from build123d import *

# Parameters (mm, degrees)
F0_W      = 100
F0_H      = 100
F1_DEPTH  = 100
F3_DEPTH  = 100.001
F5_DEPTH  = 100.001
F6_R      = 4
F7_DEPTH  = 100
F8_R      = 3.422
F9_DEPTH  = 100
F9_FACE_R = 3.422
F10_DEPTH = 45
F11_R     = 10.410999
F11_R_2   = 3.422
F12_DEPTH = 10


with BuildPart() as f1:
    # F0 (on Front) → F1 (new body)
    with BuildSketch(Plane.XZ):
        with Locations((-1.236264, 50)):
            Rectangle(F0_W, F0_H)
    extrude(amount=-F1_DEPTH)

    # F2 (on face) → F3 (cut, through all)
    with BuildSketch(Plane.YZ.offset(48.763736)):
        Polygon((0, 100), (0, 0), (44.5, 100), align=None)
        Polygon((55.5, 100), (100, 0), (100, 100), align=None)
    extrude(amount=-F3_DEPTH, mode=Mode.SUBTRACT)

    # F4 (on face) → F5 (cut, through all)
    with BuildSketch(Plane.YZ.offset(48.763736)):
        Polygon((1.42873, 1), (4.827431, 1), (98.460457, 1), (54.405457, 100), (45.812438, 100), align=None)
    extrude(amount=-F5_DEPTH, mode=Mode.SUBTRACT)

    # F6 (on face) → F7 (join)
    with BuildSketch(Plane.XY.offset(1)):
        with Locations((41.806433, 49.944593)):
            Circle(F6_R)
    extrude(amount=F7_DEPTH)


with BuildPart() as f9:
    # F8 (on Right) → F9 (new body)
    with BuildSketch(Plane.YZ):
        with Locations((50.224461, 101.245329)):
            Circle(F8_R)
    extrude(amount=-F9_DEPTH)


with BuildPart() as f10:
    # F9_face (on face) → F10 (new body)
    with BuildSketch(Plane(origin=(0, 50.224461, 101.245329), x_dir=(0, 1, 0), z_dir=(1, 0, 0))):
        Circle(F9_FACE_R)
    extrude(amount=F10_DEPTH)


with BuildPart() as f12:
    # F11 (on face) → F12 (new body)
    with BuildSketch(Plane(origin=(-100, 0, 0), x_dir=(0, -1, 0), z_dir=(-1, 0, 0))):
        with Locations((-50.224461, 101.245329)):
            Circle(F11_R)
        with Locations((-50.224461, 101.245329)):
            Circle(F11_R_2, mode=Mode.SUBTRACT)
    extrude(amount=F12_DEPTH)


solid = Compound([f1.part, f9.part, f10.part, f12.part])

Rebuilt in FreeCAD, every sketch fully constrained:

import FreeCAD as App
import Part
import Sketcher
Q = App.Units.Quantity

doc = App.newDocument("Part")
params = doc.addObject("Spreadsheet::Sheet", "Params")
for row, (alias, value) in enumerate([
    ("sketch1_width", "100 mm"),
    ("pad1_length", "100 mm"),
    ("sketch2_height", "100 mm"),
    ("sketch2_width", "44.5 mm"),
    ("sketch4_diameter", "8 mm"),
    ("pad2_length", "100 mm"),
    ("pad3_length", "100 mm"),
    ("pad4_length", "45 mm"),
    ("pad5_length", "10 mm"),
], start=1):
    params.set(f"A{row}", alias)
    params.set(f"B{row}", "=" + value)
    params.setAlias(f"B{row}", alias)

body = doc.addObject("PartDesign::Body", "Body")

sketch1 = body.newObject("Sketcher::SketchObject", "Sketch")
sketch1.AttachmentSupport = (doc.getObject("XZ_Plane"), [""])
sketch1.MapMode = "FlatFace"
sketch1.addGeometry(Part.LineSegment(App.Vector(-51, 100, 0), App.Vector(-51, 0, 0)), False)
sketch1.addGeometry(Part.LineSegment(App.Vector(-51, 0, 0), App.Vector(49, 0, 0)), False)
sketch1.addGeometry(Part.LineSegment(App.Vector(49, 0, 0), App.Vector(49, 100, 0)), False)
sketch1.addGeometry(Part.LineSegment(App.Vector(49, 100, 0), App.Vector(-51, 100, 0)), False)
sketch1.addConstraint(Sketcher.Constraint("Coincident", 0, 2, 1, 1))
sketch1.addConstraint(Sketcher.Constraint("Coincident", 1, 2, 2, 1))
sketch1.addConstraint(Sketcher.Constraint("Coincident", 2, 2, 3, 1))
sketch1.addConstraint(Sketcher.Constraint("Coincident", 3, 2, 0, 1))
sketch1.addConstraint(Sketcher.Constraint("Vertical", 0))
sketch1.addConstraint(Sketcher.Constraint("Horizontal", 1))
sketch1.addConstraint(Sketcher.Constraint("Vertical", 2))
sketch1.addConstraint(Sketcher.Constraint("Horizontal", 3))
sketch1.addConstraint(Sketcher.Constraint("PointOnObject", 0, 2, -1))
sketch1.addConstraint(Sketcher.Constraint("Equal", 3, 0))
sketch1.addConstraint(Sketcher.Constraint("DistanceX", 1, 1, 1, 2, Q("100 mm")))
sketch1.addConstraint(Sketcher.Constraint("DistanceX", 0, 2, -1, 1, Q("51.236264 mm")))
sketch1.setExpression("Constraints[10]", "Params.sketch1_width")
pad1 = body.newObject("PartDesign::Pad", "Pad")
pad1.Profile = sketch1
pad1.setExpression("Length", "Params.pad1_length")
pad1.Reversed = True

sketch2 = body.newObject("Sketcher::SketchObject", "Sketch001")
sketch2.AttachmentSupport = (doc.getObject("YZ_Plane"), [""])
sketch2.MapMode = "FlatFace"
sketch2.AttachmentOffset = App.Placement(App.Vector(0, 0, 48.763736), App.Rotation())
sketch2.addGeometry(Part.LineSegment(App.Vector(0, 100, 0), App.Vector(0, 0, 0)), False)
sketch2.addGeometry(Part.LineSegment(App.Vector(0, 0, 0), App.Vector(44, 100, 0)), False)
sketch2.addGeometry(Part.LineSegment(App.Vector(44, 100, 0), App.Vector(0, 100, 0)), False)
sketch2.addGeometry(Part.LineSegment(App.Vector(56, 100, 0), App.Vector(100, 0, 0)), False)
sketch2.addGeometry(Part.LineSegment(App.Vector(100, 0, 0), App.Vector(100, 100, 0)), False)
sketch2.addGeometry(Part.LineSegment(App.Vector(100, 100, 0), App.Vector(56, 100, 0)), False)
sketch2.addConstraint(Sketcher.Constraint("Coincident", 0, 2, 1, 1))
sketch2.addConstraint(Sketcher.Constraint("Coincident", 1, 2, 2, 1))
sketch2.addConstraint(Sketcher.Constraint("Coincident", 2, 2, 0, 1))
sketch2.addConstraint(Sketcher.Constraint("Coincident", 3, 2, 4, 1))
sketch2.addConstraint(Sketcher.Constraint("Coincident", 4, 2, 5, 1))
sketch2.addConstraint(Sketcher.Constraint("Coincident", 5, 2, 3, 1))
sketch2.addConstraint(Sketcher.Constraint("Vertical", 0))
sketch2.addConstraint(Sketcher.Constraint("Horizontal", 2))
sketch2.addConstraint(Sketcher.Constraint("Vertical", 4))
sketch2.addConstraint(Sketcher.Constraint("Horizontal", 5))
sketch2.addConstraint(Sketcher.Constraint("Coincident", 0, 2, -1, 1))
sketch2.addConstraint(Sketcher.Constraint("PointOnObject", 3, 2, -1))
sketch2.addConstraint(Sketcher.Constraint("Horizontal", 2, 2, 4, 2))
sketch2.addConstraint(Sketcher.Constraint("Equal", 2, 5))
sketch2.addConstraint(Sketcher.Constraint("DistanceY", 0, 2, 0, 1, Q("100 mm")))
sketch2.addConstraint(Sketcher.Constraint("DistanceX", 2, 2, 2, 1, Q("44.5 mm")))
sketch2.addConstraint(Sketcher.Constraint("DistanceX", -1, 1, 3, 2, Q("100 mm")))
sketch2.setExpression("Constraints[14]", "Params.sketch2_height")
sketch2.setExpression("Constraints[15]", "Params.sketch2_width")
pocket1 = body.newObject("PartDesign::Pocket", "Pocket")
pocket1.Profile = sketch2
pocket1.Type = "ThroughAll"

sketch3 = body.newObject("Sketcher::SketchObject", "Sketch002")
sketch3.AttachmentSupport = (doc.getObject("YZ_Plane"), [""])
sketch3.MapMode = "FlatFace"
sketch3.AttachmentOffset = App.Placement(App.Vector(0, 0, 48.763736), App.Rotation())
sketch3.addGeometry(Part.LineSegment(App.Vector(1, 1, 0), App.Vector(98, 1, 0)), False)
sketch3.addGeometry(Part.LineSegment(App.Vector(98, 1, 0), App.Vector(54, 100, 0)), False)
sketch3.addGeometry(Part.LineSegment(App.Vector(54, 100, 0), App.Vector(46, 100, 0)), False)
sketch3.addGeometry(Part.LineSegment(App.Vector(46, 100, 0), App.Vector(1, 1, 0)), False)
sketch3.addConstraint(Sketcher.Constraint("Coincident", 0, 2, 1, 1))
sketch3.addConstraint(Sketcher.Constraint("Coincident", 1, 2, 2, 1))
sketch3.addConstraint(Sketcher.Constraint("Coincident", 2, 2, 3, 1))
sketch3.addConstraint(Sketcher.Constraint("Coincident", 3, 2, 0, 1))
sketch3.addConstraint(Sketcher.Constraint("Horizontal", 0))
sketch3.addConstraint(Sketcher.Constraint("Horizontal", 2))
sketch3.addConstraint(Sketcher.Constraint("DistanceY", -1, 1, 0, 2, Q("1 mm")))
sketch3.addConstraint(Sketcher.Constraint("DistanceY", -1, 1, 1, 2, Q("100 mm")))
sketch3.addConstraint(Sketcher.Constraint("DistanceX", 1, 2, 0, 2, Q("44.055 mm")))
sketch3.addConstraint(Sketcher.Constraint("DistanceX", 2, 2, 2, 1, Q("8.593019 mm")))
sketch3.addConstraint(Sketcher.Constraint("Distance", 3, Q("108.493841 mm")))
sketch3.addConstraint(Sketcher.Constraint("DistanceX", -1, 1, 3, 2, Q("1.42873 mm")))
pocket2 = body.newObject("PartDesign::Pocket", "Pocket001")
pocket2.Profile = sketch3
pocket2.Type = "ThroughAll"

sketch4 = body.newObject("Sketcher::SketchObject", "Sketch003")
sketch4.AttachmentSupport = (doc.getObject("XY_Plane"), [""])
sketch4.MapMode = "FlatFace"
sketch4.AttachmentOffset = App.Placement(App.Vector(0, 0, 1), App.Rotation())
sketch4.addGeometry(Part.Circle(App.Vector(41.8, 49.9, 0), App.Vector(0, 0, 1), 4), False)
sketch4.addConstraint(Sketcher.Constraint("Diameter", 0, Q("8 mm")))
sketch4.addConstraint(Sketcher.Constraint("DistanceX", -1, 1, 0, 3, Q("41.806433 mm")))
sketch4.addConstraint(Sketcher.Constraint("DistanceY", -1, 1, 0, 3, Q("49.944593 mm")))
sketch4.setExpression("Constraints[0]", "Params.sketch4_diameter")
pad2 = body.newObject("PartDesign::Pad", "Pad001")
pad2.Profile = sketch4
pad2.setExpression("Length", "Params.pad2_length")
body2 = doc.addObject("PartDesign::Body", "Body001")

sketch5 = body2.newObject("Sketcher::SketchObject", "Sketch004")
sketch5.AttachmentSupport = (doc.getObject("YZ_Plane001"), [""])
sketch5.MapMode = "FlatFace"
sketch5.addGeometry(Part.Circle(App.Vector(50.2, 101.2, 0), App.Vector(0, 0, 1), 3.4), False)
sketch5.addConstraint(Sketcher.Constraint("Diameter", 0, Q("6.844 mm")))
sketch5.addConstraint(Sketcher.Constraint("DistanceX", -1, 1, 0, 3, Q("50.224461 mm")))
sketch5.addConstraint(Sketcher.Constraint("DistanceY", -1, 1, 0, 3, Q("101.245329 mm")))
pad3 = body2.newObject("PartDesign::Pad", "Pad002")
pad3.Profile = sketch5
pad3.setExpression("Length", "Params.pad3_length")
pad3.Reversed = True
body3 = doc.addObject("PartDesign::Body", "Body002")

sketch6 = body3.newObject("Sketcher::SketchObject", "Sketch005")
sketch6.AttachmentSupport = (doc.getObject("YZ_Plane002"), [""])
sketch6.MapMode = "FlatFace"
sketch6.addGeometry(Part.Circle(App.Vector(50.2, 101.2, 0), App.Vector(0, 0, 1), 3.4), False)
sketch6.addConstraint(Sketcher.Constraint("Diameter", 0, Q("6.844 mm")))
sketch6.addConstraint(Sketcher.Constraint("DistanceX", -1, 1, 0, 3, Q("50.224461 mm")))
sketch6.addConstraint(Sketcher.Constraint("DistanceY", -1, 1, 0, 3, Q("101.245329 mm")))
pad4 = body3.newObject("PartDesign::Pad", "Pad003")
pad4.Profile = sketch6
pad4.setExpression("Length", "Params.pad4_length")
body4 = doc.addObject("PartDesign::Body", "Body003")

sketch7 = body4.newObject("Sketcher::SketchObject", "Sketch006")
sketch7.AttachmentSupport = (doc.getObject("YZ_Plane003"), [""])
sketch7.MapMode = "FlatFace"
sketch7.AttachmentOffset = App.Placement(App.Vector(0, 0, -100), App.Rotation())
sketch7.addGeometry(Part.Circle(App.Vector(50.2, 101.2, 0), App.Vector(0, 0, 1), 10.4), False)
sketch7.addGeometry(Part.Circle(App.Vector(50.2, 101.2, 0), App.Vector(0, 0, 1), 3.4), False)
sketch7.addConstraint(Sketcher.Constraint("Coincident", 1, 3, 0, 3))
sketch7.addConstraint(Sketcher.Constraint("Diameter", 0, Q("20.821998 mm")))
sketch7.addConstraint(Sketcher.Constraint("Diameter", 1, Q("6.844 mm")))
sketch7.addConstraint(Sketcher.Constraint("DistanceX", -1, 1, 0, 3, Q("50.224461 mm")))
sketch7.addConstraint(Sketcher.Constraint("DistanceY", -1, 1, 0, 3, Q("101.245329 mm")))
pad5 = body4.newObject("PartDesign::Pad", "Pad004")
pad5.Profile = sketch7
pad5.setExpression("Length", "Params.pad5_length")
pad5.Reversed = True

doc.recompute()
